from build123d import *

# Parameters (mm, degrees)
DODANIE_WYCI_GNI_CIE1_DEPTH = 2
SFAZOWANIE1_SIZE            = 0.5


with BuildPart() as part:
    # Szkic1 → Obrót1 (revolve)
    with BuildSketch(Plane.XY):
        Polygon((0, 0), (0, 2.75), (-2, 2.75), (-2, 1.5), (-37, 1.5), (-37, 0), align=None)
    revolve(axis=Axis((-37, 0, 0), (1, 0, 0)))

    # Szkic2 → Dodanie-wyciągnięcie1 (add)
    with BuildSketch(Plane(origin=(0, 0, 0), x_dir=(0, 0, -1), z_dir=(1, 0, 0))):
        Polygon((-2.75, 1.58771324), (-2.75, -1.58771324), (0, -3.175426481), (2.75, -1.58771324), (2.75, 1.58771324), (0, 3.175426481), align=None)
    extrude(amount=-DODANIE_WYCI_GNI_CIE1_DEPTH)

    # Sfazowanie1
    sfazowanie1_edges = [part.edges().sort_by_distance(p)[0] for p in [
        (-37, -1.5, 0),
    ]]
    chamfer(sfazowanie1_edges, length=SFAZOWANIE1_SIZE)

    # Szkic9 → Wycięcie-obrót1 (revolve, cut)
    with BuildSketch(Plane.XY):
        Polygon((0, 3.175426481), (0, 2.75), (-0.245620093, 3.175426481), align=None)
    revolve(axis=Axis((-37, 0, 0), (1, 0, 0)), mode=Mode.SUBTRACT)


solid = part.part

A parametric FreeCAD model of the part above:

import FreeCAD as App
import Part
import Sketcher

V = App.Vector
Q = App.Units.Quantity


def edges_at(feature, points):
    """Names of the edges that pass closest to the given points."""
    edges = feature.Shape.Edges
    near = lambda p: min(range(len(edges)), key=lambda i: edges[i].distToShape(Part.Vertex(*p))[0])
    return sorted({f"Edge{near(p) + 1}" for p in points})


def add_polygon(sketch, points):
    """Adds a closed chain of lines whose ends are joined by coincident constraints."""
    first, n = sketch.GeometryCount, len(points)
    for a, b in zip(points, points[1:] + points[:1]):
        sketch.addGeometry(Part.LineSegment(App.Vector(*a, 0), App.Vector(*b, 0)), False)
    for i in range(n):
        sketch.addConstraint(Sketcher.Constraint("Coincident", first + i, 2, first + (i + 1) % n, 1))

doc = App.newDocument("Part")
body = doc.addObject("PartDesign::Body", "Body")

# Sketch on XY plane
sketch1 = doc.addObject("Sketcher::SketchObject", "Sketch")
body.addObject(sketch1)
sketch1.AttachmentSupport = (doc.XY_Plane, [""])
sketch1.MapMode = "FlatFace"
add_polygon(sketch1, [(0, 0), (0, 2.8), (-2, 2.8), (-2, 1.5), (-37, 1.5), (-37, 0)])  # lines 0-5
sketch1.addConstraint([
    Sketcher.Constraint("Vertical", 0),
    Sketcher.Constraint("Horizontal", 1),
    Sketcher.Constraint("Vertical", 2),
    Sketcher.Constraint("Horizontal", 3),
    Sketcher.Constraint("Vertical", 4),
    Sketcher.Constraint("Horizontal", 5),
    Sketcher.Constraint("Coincident", 5, 2, -1, 1),
    Sketcher.Constraint("DistanceX", 1, 2, 1, 1, Q("2 mm")),
    Sketcher.Constraint("DistanceX", 3, 2, 3, 1, Q("35 mm")),
    Sketcher.Constraint("DistanceY", 4, 2, 4, 1, Q("1.5 mm")),
    Sketcher.Constraint("DistanceY", 0, 1, 0, 2, Q("2.75 mm")),
])
revolution = doc.addObject("PartDesign::Revolution", "Revolution")
body.addObject(revolution)
revolution.Profile = sketch1
revolution.ReferenceAxis = (sketch1, ["H_Axis"])
revolution.Angle = 360

# Sketch on YZ plane
sketch2 = doc.addObject("Sketcher::SketchObject", "Sketch001")
body.addObject(sketch2)
sketch2.AttachmentSupport = (doc.YZ_Plane, [""])
sketch2.MapMode = "FlatFace"
add_polygon(sketch2, [(1.6, 2.8), (-1.6, 2.8), (-3.2, 0), (-1.6, -2.8), (1.6, -2.8), (3.2, 0)])  # lines 0-5
sketch2.addConstraint([
    Sketcher.Constraint("Horizontal", 0),
    Sketcher.Constraint("Horizontal", 3),
    Sketcher.Constraint("Symmetric", 0, 2, 3, 2, -1, 1),
    Sketcher.Constraint("Symmetric", 1, 2, 4, 2, -1, 1),
    Sketcher.Constraint("PointOnObject", 1, 2, -1),
    Sketcher.Constraint("Parallel", 2, 5),
    Sketcher.Constraint("Vertical", 0, 2, 2, 2),
    Sketcher.Constraint("Angle", 1, Q("-120 deg")),
    Sketcher.Constraint("DistanceY", 2, 2, 0, 2, Q("5.5 mm")),
    Sketcher.Constraint("DistanceX", 0, 2, 0, 1, Q("3.175426 mm")),
])
pad1 = doc.addObject("PartDesign::Pad", "Pad")
body.addObject(pad1)
pad1.Profile = sketch2
pad1.Length = 2
pad1.Reversed = True
doc.recompute()

chamfer = doc.addObject("PartDesign::Chamfer", "Chamfer")
body.addObject(chamfer)
chamfer.Base = (pad1, edges_at(pad1, [(-37, -1.5, 0)]))
chamfer.Size = 0.5

# Sketch on XY plane
sketch3 = doc.addObject("Sketcher::SketchObject", "Sketch002")
body.addObject(sketch3)
sketch3.AttachmentSupport = (doc.XY_Plane, [""])
sketch3.MapMode = "FlatFace"
add_polygon(sketch3, [(0, 2.75), (0, 3.18), (-0.25, 3.18)])  # lines 0-2
sketch3.addConstraint([
    Sketcher.Constraint("Vertical", 0),
    Sketcher.Constraint("Horizontal", 1),
    Sketcher.Constraint("PointOnObject", 0, 2, -2),
    Sketcher.Constraint("Angle", 2, Q("-60 deg")),
    Sketcher.Constraint("DistanceY", -1, 1, 2, 2, Q("2.75 mm")),
    Sketcher.Constraint("DistanceX", 1, 2, 1, 1, Q("0.24562 mm")),
])
groove = doc.addObject("PartDesign::Groove", "Groove")
body.addObject(groove)
groove.Profile = sketch3
groove.ReferenceAxis = (sketch3, ["H_Axis"])
groove.Angle = 360

doc.recompute()
